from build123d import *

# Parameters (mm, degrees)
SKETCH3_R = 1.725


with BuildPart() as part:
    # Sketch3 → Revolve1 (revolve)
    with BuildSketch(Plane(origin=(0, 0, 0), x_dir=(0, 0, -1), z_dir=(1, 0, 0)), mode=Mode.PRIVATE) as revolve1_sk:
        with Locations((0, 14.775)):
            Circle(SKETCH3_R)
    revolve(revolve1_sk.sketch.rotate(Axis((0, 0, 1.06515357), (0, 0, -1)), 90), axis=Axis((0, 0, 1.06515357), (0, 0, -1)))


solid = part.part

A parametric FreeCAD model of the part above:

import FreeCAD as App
import Part
import Sketcher

V = App.Vector

doc = App.newDocument("Part")
body = doc.addObject("PartDesign::Body", "Body")

sketch1 = doc.addObject("Sketcher::SketchObject", "Sketch")
body.addObject(sketch1)
sketch1.AttachmentSupport = (doc.YZ_Plane, [""])
sketch1.MapMode = "FlatFace"
sketch1.addGeometry(Part.Circle(V(14.8, 0, 0), V(0, 0, 1), 1.7), False)
sketch1.addConstraint(Sketcher.Constraint("PointOnObject", 0, 3, -1))
sketch1.addConstraint(Sketcher.Constraint("Diameter", 0, 3.45))
sketch1.addConstraint(Sketcher.Constraint("DistanceX", -1, 1, 0, 3, 14.775))
revolution = doc.addObject("PartDesign::Revolution", "Revolution")
body.addObject(revolution)
revolution.Profile = sketch1
revolution.ReferenceAxis = (sketch1, ["V_Axis"])
revolution.Angle = 360

doc.recompute()
